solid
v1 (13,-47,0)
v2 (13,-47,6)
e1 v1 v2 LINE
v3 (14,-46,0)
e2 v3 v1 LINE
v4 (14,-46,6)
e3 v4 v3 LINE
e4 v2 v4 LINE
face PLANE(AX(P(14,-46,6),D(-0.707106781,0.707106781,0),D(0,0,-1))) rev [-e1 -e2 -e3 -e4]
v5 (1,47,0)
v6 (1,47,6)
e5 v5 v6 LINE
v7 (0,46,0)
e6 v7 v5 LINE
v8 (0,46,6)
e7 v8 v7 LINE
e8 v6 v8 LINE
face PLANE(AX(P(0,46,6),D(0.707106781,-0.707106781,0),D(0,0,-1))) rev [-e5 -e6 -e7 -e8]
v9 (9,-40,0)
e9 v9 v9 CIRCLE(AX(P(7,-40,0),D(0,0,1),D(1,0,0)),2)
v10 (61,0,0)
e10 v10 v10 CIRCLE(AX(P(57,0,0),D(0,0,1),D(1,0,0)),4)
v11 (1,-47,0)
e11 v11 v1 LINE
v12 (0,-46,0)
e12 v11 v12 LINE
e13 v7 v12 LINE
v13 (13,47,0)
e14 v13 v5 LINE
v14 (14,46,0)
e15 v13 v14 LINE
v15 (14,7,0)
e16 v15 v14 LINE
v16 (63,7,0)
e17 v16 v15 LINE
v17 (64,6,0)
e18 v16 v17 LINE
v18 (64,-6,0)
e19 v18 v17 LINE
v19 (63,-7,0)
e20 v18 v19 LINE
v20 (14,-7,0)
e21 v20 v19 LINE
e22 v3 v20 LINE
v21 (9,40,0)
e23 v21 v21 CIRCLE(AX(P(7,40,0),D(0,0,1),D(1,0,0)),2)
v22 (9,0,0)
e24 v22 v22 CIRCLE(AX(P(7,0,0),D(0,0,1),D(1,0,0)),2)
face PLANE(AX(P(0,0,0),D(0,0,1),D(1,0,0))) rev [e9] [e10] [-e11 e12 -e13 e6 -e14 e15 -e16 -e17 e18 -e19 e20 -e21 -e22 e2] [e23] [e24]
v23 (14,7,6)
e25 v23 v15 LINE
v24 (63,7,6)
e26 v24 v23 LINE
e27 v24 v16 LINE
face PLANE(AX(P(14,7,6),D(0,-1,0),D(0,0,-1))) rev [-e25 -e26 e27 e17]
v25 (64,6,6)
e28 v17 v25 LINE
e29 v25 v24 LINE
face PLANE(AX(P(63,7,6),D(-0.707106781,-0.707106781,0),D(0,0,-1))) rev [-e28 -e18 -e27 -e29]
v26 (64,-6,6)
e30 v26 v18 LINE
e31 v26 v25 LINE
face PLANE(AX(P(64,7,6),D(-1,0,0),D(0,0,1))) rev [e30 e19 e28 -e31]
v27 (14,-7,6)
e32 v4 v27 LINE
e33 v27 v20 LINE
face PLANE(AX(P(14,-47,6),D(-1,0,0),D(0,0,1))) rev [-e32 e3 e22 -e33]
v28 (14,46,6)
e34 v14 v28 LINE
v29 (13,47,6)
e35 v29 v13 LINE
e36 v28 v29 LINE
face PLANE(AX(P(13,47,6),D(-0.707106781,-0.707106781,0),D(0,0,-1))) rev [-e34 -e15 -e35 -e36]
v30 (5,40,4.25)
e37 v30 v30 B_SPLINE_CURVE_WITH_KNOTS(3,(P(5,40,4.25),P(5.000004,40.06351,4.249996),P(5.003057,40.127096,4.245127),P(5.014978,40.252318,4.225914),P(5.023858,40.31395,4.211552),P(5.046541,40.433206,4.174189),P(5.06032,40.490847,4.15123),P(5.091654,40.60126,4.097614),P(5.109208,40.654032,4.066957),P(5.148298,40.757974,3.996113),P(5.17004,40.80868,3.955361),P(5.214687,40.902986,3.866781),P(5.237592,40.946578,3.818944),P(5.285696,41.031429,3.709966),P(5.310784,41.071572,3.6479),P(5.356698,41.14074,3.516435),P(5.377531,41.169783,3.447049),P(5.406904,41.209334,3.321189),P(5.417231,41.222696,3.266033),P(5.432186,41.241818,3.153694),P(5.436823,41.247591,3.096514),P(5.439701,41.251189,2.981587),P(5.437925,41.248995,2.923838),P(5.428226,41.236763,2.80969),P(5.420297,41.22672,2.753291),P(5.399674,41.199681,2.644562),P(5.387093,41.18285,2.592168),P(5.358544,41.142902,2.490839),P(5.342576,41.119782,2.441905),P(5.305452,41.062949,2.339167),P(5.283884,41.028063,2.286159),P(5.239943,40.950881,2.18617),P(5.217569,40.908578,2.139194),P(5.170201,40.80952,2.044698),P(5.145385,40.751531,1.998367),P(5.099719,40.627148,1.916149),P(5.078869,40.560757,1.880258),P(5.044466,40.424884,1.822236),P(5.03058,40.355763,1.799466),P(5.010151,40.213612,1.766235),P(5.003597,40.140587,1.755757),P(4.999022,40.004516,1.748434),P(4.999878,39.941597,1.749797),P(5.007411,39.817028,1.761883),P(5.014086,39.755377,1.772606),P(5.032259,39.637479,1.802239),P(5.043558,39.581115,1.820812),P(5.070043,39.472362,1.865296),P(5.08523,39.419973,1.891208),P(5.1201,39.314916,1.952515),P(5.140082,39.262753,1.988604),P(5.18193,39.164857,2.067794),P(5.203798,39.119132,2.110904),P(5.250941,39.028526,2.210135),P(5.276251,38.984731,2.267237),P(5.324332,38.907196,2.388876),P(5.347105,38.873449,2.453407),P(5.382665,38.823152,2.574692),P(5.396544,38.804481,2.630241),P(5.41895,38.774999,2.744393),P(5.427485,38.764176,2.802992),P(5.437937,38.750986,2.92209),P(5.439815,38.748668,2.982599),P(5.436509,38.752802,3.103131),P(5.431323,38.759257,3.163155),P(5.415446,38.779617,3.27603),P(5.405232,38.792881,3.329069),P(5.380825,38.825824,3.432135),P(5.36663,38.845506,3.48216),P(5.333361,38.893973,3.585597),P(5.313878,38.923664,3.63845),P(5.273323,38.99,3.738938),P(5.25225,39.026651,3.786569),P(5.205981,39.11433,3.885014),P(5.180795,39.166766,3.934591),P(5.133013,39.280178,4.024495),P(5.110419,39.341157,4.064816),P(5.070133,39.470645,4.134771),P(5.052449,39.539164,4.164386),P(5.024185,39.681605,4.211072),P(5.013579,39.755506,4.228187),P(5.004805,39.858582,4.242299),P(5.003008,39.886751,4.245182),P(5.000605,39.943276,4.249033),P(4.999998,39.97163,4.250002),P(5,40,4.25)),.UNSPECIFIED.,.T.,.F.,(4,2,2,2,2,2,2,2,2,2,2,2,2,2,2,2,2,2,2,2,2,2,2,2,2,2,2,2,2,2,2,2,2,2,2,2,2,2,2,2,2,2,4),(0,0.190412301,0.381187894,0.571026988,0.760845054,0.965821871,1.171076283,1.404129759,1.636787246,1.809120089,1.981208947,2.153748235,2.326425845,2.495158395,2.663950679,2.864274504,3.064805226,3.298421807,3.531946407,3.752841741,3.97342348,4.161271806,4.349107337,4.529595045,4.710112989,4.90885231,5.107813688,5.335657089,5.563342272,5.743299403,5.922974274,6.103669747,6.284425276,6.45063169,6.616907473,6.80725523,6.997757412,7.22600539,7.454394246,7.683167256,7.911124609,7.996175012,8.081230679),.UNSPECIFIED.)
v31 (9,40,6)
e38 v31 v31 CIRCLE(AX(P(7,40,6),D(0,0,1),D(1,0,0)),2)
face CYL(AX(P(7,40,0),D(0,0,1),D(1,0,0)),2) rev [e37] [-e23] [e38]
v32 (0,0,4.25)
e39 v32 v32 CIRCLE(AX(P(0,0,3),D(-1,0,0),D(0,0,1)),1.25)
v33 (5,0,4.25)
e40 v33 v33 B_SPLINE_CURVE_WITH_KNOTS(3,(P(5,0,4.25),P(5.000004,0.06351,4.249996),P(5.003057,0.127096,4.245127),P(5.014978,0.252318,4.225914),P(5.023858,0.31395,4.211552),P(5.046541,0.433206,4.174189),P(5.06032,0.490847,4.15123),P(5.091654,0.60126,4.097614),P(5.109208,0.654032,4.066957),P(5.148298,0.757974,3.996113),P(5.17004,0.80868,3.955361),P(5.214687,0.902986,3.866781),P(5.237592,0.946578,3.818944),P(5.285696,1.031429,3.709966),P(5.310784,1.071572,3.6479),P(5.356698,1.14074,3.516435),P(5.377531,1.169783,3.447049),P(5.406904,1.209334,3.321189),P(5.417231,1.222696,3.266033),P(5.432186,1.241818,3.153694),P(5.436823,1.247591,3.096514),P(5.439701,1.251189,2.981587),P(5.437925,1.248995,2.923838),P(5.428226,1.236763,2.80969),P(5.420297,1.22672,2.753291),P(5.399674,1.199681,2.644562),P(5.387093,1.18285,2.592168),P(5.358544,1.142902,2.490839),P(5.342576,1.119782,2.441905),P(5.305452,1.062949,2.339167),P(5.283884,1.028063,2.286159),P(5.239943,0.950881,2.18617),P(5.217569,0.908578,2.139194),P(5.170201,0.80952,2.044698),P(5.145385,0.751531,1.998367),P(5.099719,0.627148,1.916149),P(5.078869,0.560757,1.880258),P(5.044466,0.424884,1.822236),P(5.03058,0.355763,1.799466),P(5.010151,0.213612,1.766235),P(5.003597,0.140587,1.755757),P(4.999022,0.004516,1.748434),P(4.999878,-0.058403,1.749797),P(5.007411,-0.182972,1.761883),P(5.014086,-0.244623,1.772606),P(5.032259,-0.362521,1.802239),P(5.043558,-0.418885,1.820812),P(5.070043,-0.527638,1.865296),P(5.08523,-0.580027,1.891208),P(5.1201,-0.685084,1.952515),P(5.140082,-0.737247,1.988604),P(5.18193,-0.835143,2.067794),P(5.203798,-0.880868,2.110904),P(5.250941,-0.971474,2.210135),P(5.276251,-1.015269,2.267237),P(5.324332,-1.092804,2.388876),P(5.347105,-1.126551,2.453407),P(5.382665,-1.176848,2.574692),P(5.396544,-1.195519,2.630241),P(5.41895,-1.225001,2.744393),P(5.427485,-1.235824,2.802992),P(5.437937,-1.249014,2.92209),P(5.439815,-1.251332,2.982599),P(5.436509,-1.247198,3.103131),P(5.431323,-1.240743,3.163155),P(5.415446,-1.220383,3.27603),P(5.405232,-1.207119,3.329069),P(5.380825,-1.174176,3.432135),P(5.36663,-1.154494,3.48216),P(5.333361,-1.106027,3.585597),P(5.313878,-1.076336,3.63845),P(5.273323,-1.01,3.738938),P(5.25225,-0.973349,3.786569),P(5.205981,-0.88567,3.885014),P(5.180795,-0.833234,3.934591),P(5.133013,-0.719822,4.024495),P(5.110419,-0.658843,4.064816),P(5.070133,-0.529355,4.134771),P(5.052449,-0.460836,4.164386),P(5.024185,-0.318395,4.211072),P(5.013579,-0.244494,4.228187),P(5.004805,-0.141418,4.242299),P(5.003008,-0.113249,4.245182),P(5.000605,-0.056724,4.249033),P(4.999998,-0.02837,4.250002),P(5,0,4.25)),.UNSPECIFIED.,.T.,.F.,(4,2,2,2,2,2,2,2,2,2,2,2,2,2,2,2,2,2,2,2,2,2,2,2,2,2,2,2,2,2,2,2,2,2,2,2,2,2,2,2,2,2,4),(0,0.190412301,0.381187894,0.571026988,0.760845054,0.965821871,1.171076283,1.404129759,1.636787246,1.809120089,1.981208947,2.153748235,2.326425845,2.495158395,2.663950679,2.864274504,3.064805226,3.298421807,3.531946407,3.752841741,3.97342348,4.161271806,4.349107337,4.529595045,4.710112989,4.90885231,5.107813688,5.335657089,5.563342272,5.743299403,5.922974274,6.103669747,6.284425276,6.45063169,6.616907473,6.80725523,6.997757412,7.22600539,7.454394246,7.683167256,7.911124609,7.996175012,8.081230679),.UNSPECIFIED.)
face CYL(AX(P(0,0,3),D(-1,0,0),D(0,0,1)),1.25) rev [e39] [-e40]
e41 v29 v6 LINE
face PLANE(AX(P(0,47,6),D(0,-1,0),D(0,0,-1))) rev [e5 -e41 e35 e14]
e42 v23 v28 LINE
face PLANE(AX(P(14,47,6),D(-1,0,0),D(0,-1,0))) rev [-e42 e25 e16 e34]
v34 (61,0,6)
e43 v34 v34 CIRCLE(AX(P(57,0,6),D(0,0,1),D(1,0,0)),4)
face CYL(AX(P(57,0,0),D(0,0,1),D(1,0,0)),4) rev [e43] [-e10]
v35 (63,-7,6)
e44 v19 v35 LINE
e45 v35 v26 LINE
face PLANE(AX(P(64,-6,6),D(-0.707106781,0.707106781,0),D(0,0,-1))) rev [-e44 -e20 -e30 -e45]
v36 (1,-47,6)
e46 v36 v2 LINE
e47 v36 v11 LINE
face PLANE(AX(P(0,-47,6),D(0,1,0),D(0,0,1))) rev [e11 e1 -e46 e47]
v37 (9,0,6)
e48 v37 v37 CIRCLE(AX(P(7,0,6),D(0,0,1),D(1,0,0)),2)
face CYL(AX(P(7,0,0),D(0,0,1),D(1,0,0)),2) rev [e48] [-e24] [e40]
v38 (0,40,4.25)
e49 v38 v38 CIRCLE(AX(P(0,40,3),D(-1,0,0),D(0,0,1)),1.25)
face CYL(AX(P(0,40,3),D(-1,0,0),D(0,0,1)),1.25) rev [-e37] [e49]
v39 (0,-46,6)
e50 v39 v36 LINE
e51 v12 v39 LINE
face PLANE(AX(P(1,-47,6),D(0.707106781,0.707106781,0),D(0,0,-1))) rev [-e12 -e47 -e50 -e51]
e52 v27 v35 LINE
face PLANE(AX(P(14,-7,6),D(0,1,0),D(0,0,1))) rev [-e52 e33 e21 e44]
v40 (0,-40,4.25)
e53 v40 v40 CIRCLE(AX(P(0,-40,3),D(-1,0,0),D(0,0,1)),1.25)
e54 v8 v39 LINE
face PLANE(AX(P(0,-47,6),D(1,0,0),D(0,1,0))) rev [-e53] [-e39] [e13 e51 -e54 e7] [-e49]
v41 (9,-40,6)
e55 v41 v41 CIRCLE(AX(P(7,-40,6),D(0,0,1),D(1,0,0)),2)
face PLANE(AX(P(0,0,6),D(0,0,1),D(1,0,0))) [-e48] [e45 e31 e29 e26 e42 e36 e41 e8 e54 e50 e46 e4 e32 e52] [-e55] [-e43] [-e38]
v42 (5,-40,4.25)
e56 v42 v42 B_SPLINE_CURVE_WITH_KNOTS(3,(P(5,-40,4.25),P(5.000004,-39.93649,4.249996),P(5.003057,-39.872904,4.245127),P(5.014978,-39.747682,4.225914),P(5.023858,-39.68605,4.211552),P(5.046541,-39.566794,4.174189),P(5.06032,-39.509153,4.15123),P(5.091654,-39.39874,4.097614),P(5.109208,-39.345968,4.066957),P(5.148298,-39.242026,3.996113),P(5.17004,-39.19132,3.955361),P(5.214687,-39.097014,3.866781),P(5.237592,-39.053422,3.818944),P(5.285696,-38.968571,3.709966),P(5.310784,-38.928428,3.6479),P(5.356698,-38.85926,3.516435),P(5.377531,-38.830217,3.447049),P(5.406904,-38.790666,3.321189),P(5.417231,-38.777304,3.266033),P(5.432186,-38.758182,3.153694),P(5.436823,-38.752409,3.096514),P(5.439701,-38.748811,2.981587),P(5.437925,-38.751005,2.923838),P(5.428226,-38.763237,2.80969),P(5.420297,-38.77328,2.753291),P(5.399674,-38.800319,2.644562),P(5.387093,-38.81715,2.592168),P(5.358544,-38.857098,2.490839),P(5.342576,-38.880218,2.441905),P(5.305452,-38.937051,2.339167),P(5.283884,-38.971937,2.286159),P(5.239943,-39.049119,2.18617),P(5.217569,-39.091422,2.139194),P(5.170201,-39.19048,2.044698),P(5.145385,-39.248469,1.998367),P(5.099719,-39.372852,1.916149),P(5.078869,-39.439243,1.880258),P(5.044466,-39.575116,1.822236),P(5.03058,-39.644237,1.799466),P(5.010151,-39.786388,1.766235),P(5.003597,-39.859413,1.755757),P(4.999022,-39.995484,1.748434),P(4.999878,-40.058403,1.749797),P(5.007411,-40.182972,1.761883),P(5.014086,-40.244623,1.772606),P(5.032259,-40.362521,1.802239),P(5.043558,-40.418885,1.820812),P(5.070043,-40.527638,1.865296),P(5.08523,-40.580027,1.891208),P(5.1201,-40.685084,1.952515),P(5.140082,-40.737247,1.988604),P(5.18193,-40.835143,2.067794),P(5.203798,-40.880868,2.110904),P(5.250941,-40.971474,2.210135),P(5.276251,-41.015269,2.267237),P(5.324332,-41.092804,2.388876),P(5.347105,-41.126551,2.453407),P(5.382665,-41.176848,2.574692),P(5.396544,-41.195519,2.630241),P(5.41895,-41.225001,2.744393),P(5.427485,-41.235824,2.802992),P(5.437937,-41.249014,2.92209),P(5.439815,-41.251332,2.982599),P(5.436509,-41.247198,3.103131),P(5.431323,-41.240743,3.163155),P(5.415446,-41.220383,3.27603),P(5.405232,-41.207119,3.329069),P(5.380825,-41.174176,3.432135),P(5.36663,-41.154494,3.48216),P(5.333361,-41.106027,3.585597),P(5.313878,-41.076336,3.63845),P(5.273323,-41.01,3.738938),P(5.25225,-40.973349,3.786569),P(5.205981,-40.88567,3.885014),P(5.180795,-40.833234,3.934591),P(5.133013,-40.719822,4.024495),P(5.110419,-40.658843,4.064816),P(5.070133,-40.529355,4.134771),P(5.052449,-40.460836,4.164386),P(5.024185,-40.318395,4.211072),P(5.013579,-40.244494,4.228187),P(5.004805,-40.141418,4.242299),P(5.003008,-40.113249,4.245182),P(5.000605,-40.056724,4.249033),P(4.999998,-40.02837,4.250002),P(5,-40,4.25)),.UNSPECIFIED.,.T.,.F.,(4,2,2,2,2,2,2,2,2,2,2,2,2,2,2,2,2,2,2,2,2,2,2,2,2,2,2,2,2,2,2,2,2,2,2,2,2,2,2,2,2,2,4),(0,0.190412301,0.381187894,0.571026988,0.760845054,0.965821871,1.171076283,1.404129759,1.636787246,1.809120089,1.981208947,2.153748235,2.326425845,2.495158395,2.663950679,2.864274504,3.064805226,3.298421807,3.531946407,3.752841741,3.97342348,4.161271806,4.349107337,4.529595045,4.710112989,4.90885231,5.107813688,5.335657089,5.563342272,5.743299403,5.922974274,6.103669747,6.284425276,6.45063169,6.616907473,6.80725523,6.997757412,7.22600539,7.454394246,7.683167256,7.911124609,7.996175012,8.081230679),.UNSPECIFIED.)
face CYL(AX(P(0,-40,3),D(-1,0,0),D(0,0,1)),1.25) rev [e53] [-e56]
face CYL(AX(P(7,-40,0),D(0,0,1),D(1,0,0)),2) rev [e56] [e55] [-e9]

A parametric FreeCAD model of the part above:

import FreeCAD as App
import Part
import Sketcher
from FreeCAD import Vector


def edges_at(feature, points):
    """Names of the edges that pass closest to the given points."""
    edges = feature.Shape.Edges
    near = lambda p: min(range(len(edges)), key=lambda i: edges[i].distToShape(Part.Vertex(*p))[0])
    return sorted({f"Edge{near(p) + 1}" for p in points})

doc = App.newDocument("Part")
body = doc.addObject("PartDesign::Body", "Body")

# Sketch on XY plane
sketch1 = body.newObject("Sketcher::SketchObject", "Sketch")
sketch1.AttachmentSupport = (doc.getObject("XY_Plane"), [""])
sketch1.MapMode = "FlatFace"
sketch1.addGeometry([
    Part.LineSegment(Vector(0, 47, 0), Vector(0, -47, 0)),  # 0
    Part.LineSegment(Vector(0, -47, 0), Vector(14, -47, 0)),  # 1
    Part.LineSegment(Vector(14, -47, 0), Vector(14, -7, 0)),  # 2
    Part.LineSegment(Vector(14, -7, 0), Vector(64, -7, 0)),  # 3
    Part.LineSegment(Vector(64, -7, 0), Vector(64, 7, 0)),  # 4
    Part.LineSegment(Vector(64, 7, 0), Vector(14, 7, 0)),  # 5
    Part.LineSegment(Vector(14, 7, 0), Vector(14, 47, 0)),  # 6
    Part.LineSegment(Vector(14, 47, 0), Vector(0, 47, 0)),  # 7
], False)
sketch1.addConstraint([
    Sketcher.Constraint("Coincident", 0, 2, 1, 1),
    Sketcher.Constraint("Coincident", 1, 2, 2, 1),
    Sketcher.Constraint("Coincident", 2, 2, 3, 1),
    Sketcher.Constraint("Coincident", 3, 2, 4, 1),
    Sketcher.Constraint("Coincident", 4, 2, 5, 1),
    Sketcher.Constraint("Coincident", 5, 2, 6, 1),
    Sketcher.Constraint("Coincident", 6, 2, 7, 1),
    Sketcher.Constraint("Coincident", 7, 2, 0, 1),
    Sketcher.Constraint("Vertical", 0),
    Sketcher.Constraint("Horizontal", 1),
    Sketcher.Constraint("Vertical", 2),
    Sketcher.Constraint("Horizontal", 3),
    Sketcher.Constraint("Vertical", 4),
    Sketcher.Constraint("Horizontal", 5),
    Sketcher.Constraint("Vertical", 6),
    Sketcher.Constraint("Horizontal", 7),
    Sketcher.Constraint("Symmetric", 0, 2, 7, 2, -1, 1),
    Sketcher.Constraint("Symmetric", 2, 2, 5, 2, -1),
    Sketcher.Constraint("Equal", 7, 4),
    Sketcher.Constraint("DistanceX", 1, 1, 1, 2, 14.0),
    Sketcher.Constraint("DistanceX", 3, 1, 3, 2, 50.0),
    Sketcher.Constraint("DistanceY", 0, 2, 0, 1, 94.0),
])
pad1 = body.newObject("PartDesign::Pad", "Pad")
pad1.Profile = sketch1
pad1.Length = 6

# Sketch on XY plane
sketch2 = body.newObject("Sketcher::SketchObject", "Sketch001")
sketch2.AttachmentSupport = (doc.getObject("XY_Plane"), [""])
sketch2.MapMode = "FlatFace"
sketch2.AttachmentOffset = App.Placement(Vector(0, 0, 6), App.Rotation())
sketch2.addGeometry([
    Part.Circle(Vector(7, 40, 0), Vector(0, 0, 1), 2),
    Part.Circle(Vector(7, -40, 0), Vector(0, 0, 1), 2),
    Part.Circle(Vector(7, 0, 0), Vector(0, 0, 1), 2),
    Part.Circle(Vector(57, 0, 0), Vector(0, 0, 1), 4),
], False)
sketch2.addConstraint([
    Sketcher.Constraint("Equal", 0, 1),
    Sketcher.Constraint("Equal", 1, 2),
    Sketcher.Constraint("Symmetric", 0, 3, 1, 3, -1),
    Sketcher.Constraint("PointOnObject", 2, 3, -1),
    Sketcher.Constraint("PointOnObject", 3, 3, -1),
    Sketcher.Constraint("Vertical", 1, 3, 2, 3),
    Sketcher.Constraint("Diameter", 0, 4.0),
    Sketcher.Constraint("Diameter", 3, 8.0),
    Sketcher.Constraint("DistanceX", -1, 1, 0, 3, 7.0),
    Sketcher.Constraint("DistanceY", -1, 1, 0, 3, 40.0),
    Sketcher.Constraint("DistanceX", -1, 1, 3, 3, 57.0),
])
pocket1 = body.newObject("PartDesign::Pocket", "Pocket")
pocket1.Profile = sketch2
pocket1.Type = "ThroughAll"

# Sketch on YZ plane
sketch3 = body.newObject("Sketcher::SketchObject", "Sketch002")
sketch3.AttachmentSupport = (doc.getObject("YZ_Plane"), [""])
sketch3.MapMode = "FlatFace"
sketch3.addGeometry(Part.Circle(Vector(-40, 3, 0), Vector(0, 0, 1), 1.2), False)
sketch3.addConstraint([
    Sketcher.Constraint("Diameter", 0, 2.5),
    Sketcher.Constraint("DistanceX", 0, 3, -1, 1, 40.0),
    Sketcher.Constraint("DistanceY", -1, 1, 0, 3, 3.0),
])
pocket2 = body.newObject("PartDesign::Pocket", "Pocket001")
pocket2.Profile = sketch3
pocket2.Type = "UpToFirst"
pocket2.Reversed = True

# Sketch on YZ plane
sketch4 = body.newObject("Sketcher::SketchObject", "Sketch003")
sketch4.AttachmentSupport = (doc.getObject("YZ_Plane"), [""])
sketch4.MapMode = "FlatFace"
sketch4.addGeometry(Part.Circle(Vector(40, 3, 0), Vector(0, 0, 1), 1.2), False)
sketch4.addConstraint([
    Sketcher.Constraint("Diameter", 0, 2.5),
    Sketcher.Constraint("DistanceX", -1, 1, 0, 3, 40.0),
    Sketcher.Constraint("DistanceY", -1, 1, 0, 3, 3.0),
])
pocket3 = body.newObject("PartDesign::Pocket", "Pocket002")
pocket3.Profile = sketch4
pocket3.Type = "UpToFirst"
pocket3.Reversed = True

# Sketch on YZ plane
sketch5 = body.newObject("Sketcher::SketchObject", "Sketch004")
sketch5.AttachmentSupport = (doc.getObject("YZ_Plane"), [""])
sketch5.MapMode = "FlatFace"
sketch5.addGeometry(Part.Circle(Vector(0, 3, 0), Vector(0, 0, 1), 1.2), False)
sketch5.addConstraint([
    Sketcher.Constraint("PointOnObject", 0, 3, -2),
    Sketcher.Constraint("Diameter", 0, 2.5),
    Sketcher.Constraint("DistanceY", -1, 1, 0, 3, 3.0),
])
pocket4 = body.newObject("PartDesign::Pocket", "Pocket003")
pocket4.Profile = sketch5
pocket4.Type = "UpToFirst"
pocket4.Reversed = True
doc.recompute()

chamfer = body.newObject("PartDesign::Chamfer", "Chamfer")
chamfer.Base = (pocket4, edges_at(pocket4, [
    (64, 7, 3),
    (64, -7, 3),
    (14, -47, 3),
    (0, -47, 3),
    (0, 47, 3),
    (14, 47, 3),
]))
chamfer.Size = 1

doc.recompute()
